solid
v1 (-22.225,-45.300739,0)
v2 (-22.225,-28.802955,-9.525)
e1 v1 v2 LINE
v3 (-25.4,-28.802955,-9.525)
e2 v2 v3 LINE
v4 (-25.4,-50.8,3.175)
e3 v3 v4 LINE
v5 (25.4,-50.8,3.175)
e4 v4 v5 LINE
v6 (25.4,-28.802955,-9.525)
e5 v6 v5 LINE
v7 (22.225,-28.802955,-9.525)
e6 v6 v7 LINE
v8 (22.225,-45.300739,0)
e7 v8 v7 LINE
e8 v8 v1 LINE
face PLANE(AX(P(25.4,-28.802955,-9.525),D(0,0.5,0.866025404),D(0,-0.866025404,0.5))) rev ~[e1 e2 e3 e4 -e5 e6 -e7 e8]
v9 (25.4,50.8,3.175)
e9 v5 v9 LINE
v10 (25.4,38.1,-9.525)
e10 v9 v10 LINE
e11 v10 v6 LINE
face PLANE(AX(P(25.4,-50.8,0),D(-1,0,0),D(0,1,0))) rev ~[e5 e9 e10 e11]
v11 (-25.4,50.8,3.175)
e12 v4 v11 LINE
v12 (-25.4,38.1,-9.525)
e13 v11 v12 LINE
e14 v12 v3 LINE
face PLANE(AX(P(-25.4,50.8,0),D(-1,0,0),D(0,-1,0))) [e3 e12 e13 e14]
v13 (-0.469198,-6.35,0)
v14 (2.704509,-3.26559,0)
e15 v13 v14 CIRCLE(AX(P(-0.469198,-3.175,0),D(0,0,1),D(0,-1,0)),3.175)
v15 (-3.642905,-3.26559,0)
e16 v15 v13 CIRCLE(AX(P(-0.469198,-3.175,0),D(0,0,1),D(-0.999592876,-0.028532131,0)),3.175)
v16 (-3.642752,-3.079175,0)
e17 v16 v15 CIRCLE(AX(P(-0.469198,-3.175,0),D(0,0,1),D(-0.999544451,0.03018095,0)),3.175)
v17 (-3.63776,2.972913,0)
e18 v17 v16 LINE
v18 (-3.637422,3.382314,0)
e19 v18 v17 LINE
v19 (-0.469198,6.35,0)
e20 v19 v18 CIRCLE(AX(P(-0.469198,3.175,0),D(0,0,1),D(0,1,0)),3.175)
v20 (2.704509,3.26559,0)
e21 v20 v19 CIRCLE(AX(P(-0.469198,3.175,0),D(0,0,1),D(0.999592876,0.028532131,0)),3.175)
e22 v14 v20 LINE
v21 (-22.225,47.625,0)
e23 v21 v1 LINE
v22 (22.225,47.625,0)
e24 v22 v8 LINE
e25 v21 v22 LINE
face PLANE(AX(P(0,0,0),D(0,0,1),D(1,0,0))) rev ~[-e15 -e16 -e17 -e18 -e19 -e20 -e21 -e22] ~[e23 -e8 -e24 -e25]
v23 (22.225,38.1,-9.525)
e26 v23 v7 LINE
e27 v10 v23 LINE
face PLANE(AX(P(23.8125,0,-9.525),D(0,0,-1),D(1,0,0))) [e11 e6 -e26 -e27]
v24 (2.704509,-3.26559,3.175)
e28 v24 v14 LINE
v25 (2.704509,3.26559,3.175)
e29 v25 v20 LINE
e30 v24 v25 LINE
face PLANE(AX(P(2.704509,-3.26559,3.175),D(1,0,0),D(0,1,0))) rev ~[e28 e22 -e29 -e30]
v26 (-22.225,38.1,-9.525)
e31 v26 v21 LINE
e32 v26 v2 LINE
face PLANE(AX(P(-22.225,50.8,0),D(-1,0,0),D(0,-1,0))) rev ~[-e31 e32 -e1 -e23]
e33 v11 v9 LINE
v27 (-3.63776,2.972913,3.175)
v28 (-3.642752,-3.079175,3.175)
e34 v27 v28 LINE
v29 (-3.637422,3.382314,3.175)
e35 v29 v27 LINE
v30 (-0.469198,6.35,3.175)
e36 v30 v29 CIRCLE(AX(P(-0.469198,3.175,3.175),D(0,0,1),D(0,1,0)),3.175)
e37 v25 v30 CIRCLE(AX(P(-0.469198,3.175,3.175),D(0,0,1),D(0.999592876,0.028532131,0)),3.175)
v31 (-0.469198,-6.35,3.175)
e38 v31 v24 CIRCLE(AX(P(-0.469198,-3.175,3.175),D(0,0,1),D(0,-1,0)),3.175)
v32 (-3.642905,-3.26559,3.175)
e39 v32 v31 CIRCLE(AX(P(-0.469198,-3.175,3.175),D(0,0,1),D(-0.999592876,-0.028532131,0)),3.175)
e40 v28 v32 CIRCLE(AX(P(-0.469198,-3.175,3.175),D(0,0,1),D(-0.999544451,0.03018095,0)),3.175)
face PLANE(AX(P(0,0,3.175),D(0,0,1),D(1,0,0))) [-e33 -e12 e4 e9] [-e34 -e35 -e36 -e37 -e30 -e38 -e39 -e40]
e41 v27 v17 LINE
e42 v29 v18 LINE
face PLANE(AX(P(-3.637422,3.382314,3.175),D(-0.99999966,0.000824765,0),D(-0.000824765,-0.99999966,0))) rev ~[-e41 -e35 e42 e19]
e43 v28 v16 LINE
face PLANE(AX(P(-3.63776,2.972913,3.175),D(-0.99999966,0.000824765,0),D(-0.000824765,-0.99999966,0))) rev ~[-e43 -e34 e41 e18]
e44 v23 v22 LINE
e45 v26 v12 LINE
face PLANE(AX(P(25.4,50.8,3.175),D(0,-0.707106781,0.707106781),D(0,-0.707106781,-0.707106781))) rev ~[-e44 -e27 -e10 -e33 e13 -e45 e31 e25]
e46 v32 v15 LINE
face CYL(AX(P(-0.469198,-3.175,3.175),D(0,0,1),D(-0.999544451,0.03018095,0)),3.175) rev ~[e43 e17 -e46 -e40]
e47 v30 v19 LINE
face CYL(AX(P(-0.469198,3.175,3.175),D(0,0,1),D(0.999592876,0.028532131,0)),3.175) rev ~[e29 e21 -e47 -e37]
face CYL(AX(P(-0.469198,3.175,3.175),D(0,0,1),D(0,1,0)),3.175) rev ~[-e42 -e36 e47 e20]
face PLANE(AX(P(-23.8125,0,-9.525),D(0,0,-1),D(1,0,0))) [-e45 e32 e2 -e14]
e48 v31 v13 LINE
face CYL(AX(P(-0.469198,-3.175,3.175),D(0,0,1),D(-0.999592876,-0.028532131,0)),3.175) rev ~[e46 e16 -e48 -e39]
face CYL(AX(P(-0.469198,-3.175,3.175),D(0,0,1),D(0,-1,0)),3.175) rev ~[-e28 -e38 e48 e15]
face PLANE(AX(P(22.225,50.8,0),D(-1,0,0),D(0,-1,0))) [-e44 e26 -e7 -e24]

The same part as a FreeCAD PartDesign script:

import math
import FreeCAD as App
import Part
import Sketcher

V = App.Vector
Q = App.Units.Quantity

doc = App.newDocument("Part")
body = doc.addObject("PartDesign::Body", "Body")

sketch1 = body.newObject("Sketcher::SketchObject", "Sketch")
sketch1.AttachmentSupport = (doc.getObject("XY_Plane"), [""])
sketch1.MapMode = "FlatFace"
sketch1.addGeometry([
    Part.LineSegment(V(-25, 51, 0), V(-25, -51, 0)),
    Part.LineSegment(V(-25, -51, 0), V(25, -51, 0)),
    Part.LineSegment(V(25, -51, 0), V(25, 51, 0)),
    Part.LineSegment(V(25, 51, 0), V(-25, 51, 0)),
], False)
sketch1.addConstraint([
    Sketcher.Constraint("Coincident", 0, 2, 1, 1),
    Sketcher.Constraint("Coincident", 1, 2, 2, 1),
    Sketcher.Constraint("Coincident", 2, 2, 3, 1),
    Sketcher.Constraint("Coincident", 3, 2, 0, 1),
    Sketcher.Constraint("Vertical", 0),
    Sketcher.Constraint("Horizontal", 1),
    Sketcher.Constraint("Vertical", 2),
    Sketcher.Constraint("Horizontal", 3),
    Sketcher.Constraint("Symmetric", 0, 2, 2, 2, -1, 1),
    Sketcher.Constraint("DistanceX", 1, 1, 1, 2, Q("2 in")),
    Sketcher.Constraint("DistanceY", 0, 2, 0, 1, Q("4 in")),
])
pad1 = body.newObject("PartDesign::Pad", "Pad")
pad1.Profile = sketch1
pad1.Length = Q("0.125 in")

sketch2 = body.newObject("Sketcher::SketchObject", "Sketch001")
sketch2.AttachmentSupport = (doc.getObject("XY_Plane"), [""])
sketch2.MapMode = "FlatFace"
sketch2.addGeometry([
    Part.LineSegment(V(-25.4, -50.8, 0), V(-25.4, 50.8, 0)),
    Part.LineSegment(V(-25.4, 50.8, 0), V(-22.2, 50.8, 0)),
    Part.LineSegment(V(-22.2, 50.8, 0), V(-22.2, -50.8, 0)),
    Part.LineSegment(V(-22.2, -50.8, 0), V(-25.4, -50.8, 0)),
    Part.LineSegment(V(22.2, -50.8, 0), V(22.2, 50.8, 0)),
    Part.LineSegment(V(22.2, 50.8, 0), V(25.4, 50.8, 0)),
    Part.LineSegment(V(25.4, 50.8, 0), V(25.4, -50.8, 0)),
    Part.LineSegment(V(25.4, -50.8, 0), V(22.2, -50.8, 0)),
], False)
sketch2.addConstraint([
    Sketcher.Constraint("Coincident", 0, 2, 1, 1),
    Sketcher.Constraint("Coincident", 1, 2, 2, 1),
    Sketcher.Constraint("Coincident", 2, 2, 3, 1),
    Sketcher.Constraint("Coincident", 3, 2, 0, 1),
    Sketcher.Constraint("Coincident", 4, 2, 5, 1),
    Sketcher.Constraint("Coincident", 5, 2, 6, 1),
    Sketcher.Constraint("Coincident", 6, 2, 7, 1),
    Sketcher.Constraint("Coincident", 7, 2, 4, 1),
    Sketcher.Constraint("Vertical", 0),
    Sketcher.Constraint("Horizontal", 1),
    Sketcher.Constraint("Vertical", 2),
    Sketcher.Constraint("Horizontal", 3),
    Sketcher.Constraint("Vertical", 4),
    Sketcher.Constraint("Horizontal", 5),
    Sketcher.Constraint("Vertical", 6),
    Sketcher.Constraint("Horizontal", 7),
    Sketcher.Constraint("Symmetric", 2, 2, 4, 2, -1, 1),
    Sketcher.Constraint("Symmetric", 0, 2, 6, 2, -1, 1),
    Sketcher.Constraint("Horizontal", 1, 2, 4, 2),
    Sketcher.Constraint("DistanceY", 0, 1, 0, 2, Q("4 in")),
    Sketcher.Constraint("DistanceX", 0, 2, -1, 1, Q("1 in")),
    Sketcher.Constraint("DistanceX", 1, 1, 1, 2, Q("0.125 in")),
])
pad2 = body.newObject("PartDesign::Pad", "Pad001")
pad2.Profile = sketch2
pad2.Length = Q("0.375 in")
pad2.Reversed = True

sketch3 = body.newObject("Sketcher::SketchObject", "Sketch002")
sketch3.AttachmentSupport = (doc.getObject("YZ_Plane"), [""])
sketch3.MapMode = "FlatFace"
sketch3.AttachmentOffset = App.Placement(V(0, 0, 1 * 25.4), App.Rotation())
sketch3.addGeometry([
    Part.LineSegment(V(-29, -10, 0), V(-51, 3, 0)),
    Part.LineSegment(V(-51, 3, 0), V(-51, -10, 0)),
    Part.LineSegment(V(-51, -10, 0), V(-29, -10, 0)),
    Part.LineSegment(V(51, -10, 0), V(51, 3, 0)),
    Part.LineSegment(V(51, 3, 0), V(38, -10, 0)),
    Part.LineSegment(V(38, -10, 0), V(51, -10, 0)),
], False)
sketch3.addConstraint([
    Sketcher.Constraint("Coincident", 0, 2, 1, 1),
    Sketcher.Constraint("Coincident", 1, 2, 2, 1),
    Sketcher.Constraint("Coincident", 2, 2, 0, 1),
    Sketcher.Constraint("Coincident", 3, 2, 4, 1),
    Sketcher.Constraint("Coincident", 4, 2, 5, 1),
    Sketcher.Constraint("Coincident", 5, 2, 3, 1),
    Sketcher.Constraint("Vertical", 1),
    Sketcher.Constraint("Horizontal", 2),
    Sketcher.Constraint("Vertical", 3),
    Sketcher.Constraint("Horizontal", 5),
    Sketcher.Constraint("Symmetric", 0, 2, 3, 2, -2),
    Sketcher.Constraint("Horizontal", 2, 2, 4, 2),
    Sketcher.Constraint("Equal", 5, 1),
    Sketcher.Constraint("Distance", 0, Q("1 in")),
    Sketcher.Constraint("DistanceX", 5, 1, 5, 2, Q("0.5 in")),
    Sketcher.Constraint("DistanceX", 0, 2, -1, 1, Q("2 in")),
    Sketcher.Constraint("DistanceY", -1, 1, 0, 2, Q("0.125 in")),
])
pocket1 = body.newObject("PartDesign::Pocket", "Pocket")
pocket1.Profile = sketch3
pocket1.Length = Q("2 in")

sketch4 = body.newObject("Sketcher::SketchObject", "Sketch003")
sketch4.AttachmentSupport = (doc.getObject("XY_Plane"), [""])
sketch4.MapMode = "FlatFace"
sketch4.AttachmentOffset = App.Placement(V(0, 0, 0.125 * 25.4), App.Rotation())
sketch4.addGeometry([
    Part.ArcOfCircle(Part.Circle(V(-0.47, 3.17, 0), V(0, 0, 1), 3.17), math.radians(90), math.radians(176)),
    Part.LineSegment(V(-3.64, 3.38, 0), V(-3.64, 2.97, 0)),
    Part.LineSegment(V(-3.64, 2.97, 0), V(-3.64, -3.08, 0)),
    Part.ArcOfCircle(Part.Circle(V(-0.47, -3.17, 0), V(0, 0, 1), 3.17), math.radians(178.27), math.radians(181.63)),
    Part.ArcOfCircle(Part.Circle(V(-0.47, -3.17, 0), V(0, 0, 1), 3.17), math.radians(-178), math.radians(-90)),
    Part.ArcOfCircle(Part.Circle(V(-0.47, -3.17, 0), V(0, 0, 1), 3.17), math.radians(-90), math.radians(-2)),
    Part.LineSegment(V(2.7, -3.27, 0), V(2.7, 3.27, 0)),
    Part.ArcOfCircle(Part.Circle(V(-0.47, 3.17, 0), V(0, 0, 1), 3.17), math.radians(2), math.radians(90)),
], False)
sketch4.addConstraint([
    Sketcher.Constraint("Coincident", 0, 2, 1, 1),
    Sketcher.Constraint("Coincident", 1, 2, 2, 1),
    Sketcher.Constraint("Coincident", 2, 2, 3, 1),
    Sketcher.Constraint("Tangent", 3, 2, 4, 1),
    Sketcher.Constraint("Tangent", 4, 2, 5, 1),
    Sketcher.Constraint("Coincident", 5, 2, 6, 1),
    Sketcher.Constraint("Coincident", 6, 2, 7, 1),
    Sketcher.Constraint("Tangent", 7, 2, 0, 1),
    Sketcher.Constraint("Vertical", 6),
    Sketcher.Constraint("Coincident", 5, 3, 3, 3),
    Sketcher.Constraint("Equal", 0, 3),
    Sketcher.Constraint("Equal", 5, 7),
    Sketcher.Constraint("Symmetric", 0, 3, 3, 3, -1),
    Sketcher.Constraint("Parallel", 1, 2),
    Sketcher.Constraint("Horizontal", 3, 2, 5, 2),
    Sketcher.Constraint("Vertical", 7, 3, 4, 2),
    Sketcher.Constraint("Vertical", 4, 2, 7, 2),
    Sketcher.Constraint("Radius", 0, Q("0.125 in")),
    Sketcher.Constraint("DistanceY", 4, 2, -1, 1, Q("0.25 in")),
    Sketcher.Constraint("Distance", 1, Q("0.409401 mm")),
    Sketcher.Constraint("DistanceY", 6, 1, 6, 2, Q("6.531179 mm")),
    Sketcher.Constraint("DistanceX", 0, 3, -1, 1, Q("0.469198 mm")),
    Sketcher.Constraint("Distance", 2, Q("6.05209 mm")),
    Sketcher.Constraint("DistanceX", 1, 2, -1, 1, Q("3.63776 mm")),
])
pocket2 = body.newObject("PartDesign::Pocket", "Pocket001")
pocket2.Profile = sketch4
pocket2.Length = Q("1 in")

doc.recompute()
